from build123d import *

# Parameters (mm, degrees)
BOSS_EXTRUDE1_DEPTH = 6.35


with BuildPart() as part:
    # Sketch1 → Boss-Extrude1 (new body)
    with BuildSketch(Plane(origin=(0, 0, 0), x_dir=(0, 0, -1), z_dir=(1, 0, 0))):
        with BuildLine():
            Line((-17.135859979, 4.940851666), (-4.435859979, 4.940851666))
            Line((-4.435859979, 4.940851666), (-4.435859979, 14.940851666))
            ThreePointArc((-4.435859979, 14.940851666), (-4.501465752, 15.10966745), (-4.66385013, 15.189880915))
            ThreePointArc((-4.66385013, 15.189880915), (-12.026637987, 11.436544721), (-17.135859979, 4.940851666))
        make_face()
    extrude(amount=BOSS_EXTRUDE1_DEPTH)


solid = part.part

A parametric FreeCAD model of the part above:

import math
import FreeCAD as App
import Part
import Sketcher

doc = App.newDocument("Part")
body = doc.addObject("PartDesign::Body", "Body")

# Sketch on YZ plane
sketch1 = body.newObject("Sketcher::SketchObject", "Sketch")
sketch1.AttachmentSupport = (doc.getObject("YZ_Plane"), [""])
sketch1.MapMode = "FlatFace"
sketch1.addGeometry(Part.LineSegment(App.Vector(4.94, 17.14, 0), App.Vector(4.94, 4.44, 0)), False)
sketch1.addGeometry(Part.LineSegment(App.Vector(4.94, 4.44, 0), App.Vector(14.94, 4.44, 0)), False)
sketch1.addGeometry(Part.ArcOfCircle(Part.Circle(App.Vector(14.94, 4.69, 0), App.Vector(0, 0, 1), 0.25), math.radians(-90), math.radians(-5)), False)
sketch1.addGeometry(Part.ArcOfCircle(Part.Circle(App.Vector(-3.43, -0.19, 0), App.Vector(0, 0, 1), 19.24), math.radians(15), math.radians(64)), False)
sketch1.addConstraint(Sketcher.Constraint("Coincident", 0, 2, 1, 1))
sketch1.addConstraint(Sketcher.Constraint("Tangent", 1, 2, 2, 1))
sketch1.addConstraint(Sketcher.Constraint("Coincident", 2, 2, 3, 1))
sketch1.addConstraint(Sketcher.Constraint("Coincident", 3, 2, 0, 1))
sketch1.addConstraint(Sketcher.Constraint("Vertical", 0))
sketch1.addConstraint(Sketcher.Constraint("Horizontal", 1))
sketch1.addConstraint(Sketcher.Constraint("DistanceX", 1, 1, 1, 2, 10.0))
sketch1.addConstraint(Sketcher.Constraint("Radius", 2, 0.25))
sketch1.addConstraint(Sketcher.Constraint("DistanceY", 0, 2, 0, 1, 12.7))
sketch1.addConstraint(Sketcher.Constraint("Radius", 3, 19.241534))
sketch1.addConstraint(Sketcher.Constraint("DistanceX", -1, 1, 2, 3, 14.940852))
sketch1.addConstraint(Sketcher.Constraint("DistanceY", -1, 1, 2, 3, 4.68586))
sketch1.addConstraint(Sketcher.Constraint("DistanceX", 3, 3, -1, 1, 3.429459))
pad1 = body.newObject("PartDesign::Pad", "Pad")
pad1.Profile = sketch1
pad1.Length = 6.35

doc.recompute()
